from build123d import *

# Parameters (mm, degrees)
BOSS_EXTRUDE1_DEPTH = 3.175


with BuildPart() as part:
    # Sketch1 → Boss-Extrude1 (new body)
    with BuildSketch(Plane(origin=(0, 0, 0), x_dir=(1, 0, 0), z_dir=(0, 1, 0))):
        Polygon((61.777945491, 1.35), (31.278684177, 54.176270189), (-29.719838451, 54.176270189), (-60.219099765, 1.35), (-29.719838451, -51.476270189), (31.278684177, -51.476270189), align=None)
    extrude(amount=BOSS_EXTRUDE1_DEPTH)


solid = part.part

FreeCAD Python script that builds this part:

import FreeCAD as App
import Part
import Sketcher

V = App.Vector
Q = App.Units.Quantity

doc = App.newDocument("Part")
body = doc.addObject("PartDesign::Body", "Body")

sketch1 = doc.addObject("Sketcher::SketchObject", "Sketch")
body.addObject(sketch1)
sketch1.AttachmentSupport = (doc.XZ_Plane, [""])
sketch1.MapMode = "FlatFace"
sketch1.addGeometry(Part.LineSegment(V(62, -1, 0), V(31, -54, 0)), False)
sketch1.addGeometry(Part.LineSegment(V(31, -54, 0), V(-30, -54, 0)), False)
sketch1.addGeometry(Part.LineSegment(V(-30, -54, 0), V(-60, -1, 0)), False)
sketch1.addGeometry(Part.LineSegment(V(-60, -1, 0), V(-30, 51, 0)), False)
sketch1.addGeometry(Part.LineSegment(V(-30, 51, 0), V(31, 51, 0)), False)
sketch1.addGeometry(Part.LineSegment(V(31, 51, 0), V(62, -1, 0)), False)
sketch1.addConstraint(Sketcher.Constraint("Coincident", 0, 2, 1, 1))
sketch1.addConstraint(Sketcher.Constraint("Coincident", 1, 2, 2, 1))
sketch1.addConstraint(Sketcher.Constraint("Coincident", 2, 2, 3, 1))
sketch1.addConstraint(Sketcher.Constraint("Coincident", 3, 2, 4, 1))
sketch1.addConstraint(Sketcher.Constraint("Coincident", 4, 2, 5, 1))
sketch1.addConstraint(Sketcher.Constraint("Coincident", 5, 2, 0, 1))
sketch1.addConstraint(Sketcher.Constraint("Horizontal", 1))
sketch1.addConstraint(Sketcher.Constraint("Horizontal", 4))
sketch1.addConstraint(Sketcher.Constraint("Parallel", 0, 3))
sketch1.addConstraint(Sketcher.Constraint("Parallel", 2, 5))
sketch1.addConstraint(Sketcher.Constraint("Horizontal", 2, 2, 5, 2))
sketch1.addConstraint(Sketcher.Constraint("Vertical", 1, 2, 3, 2))
sketch1.addConstraint(Sketcher.Constraint("Vertical", 0, 2, 4, 2))
sketch1.addConstraint(Sketcher.Constraint("Angle", 0, Q("-120 deg")))
sketch1.addConstraint(Sketcher.Constraint("DistanceX", 2, 2, -1, 1, Q("60.2191 mm")))
sketch1.addConstraint(Sketcher.Constraint("DistanceY", 2, 2, -1, 1, Q("1.35 mm")))
sketch1.addConstraint(Sketcher.Constraint("DistanceX", 1, 2, 1, 1, Q("60.998523 mm")))
sketch1.addConstraint(Sketcher.Constraint("DistanceY", 0, 2, -1, 1, Q("54.17627 mm")))
pad1 = doc.addObject("PartDesign::Pad", "Pad")
body.addObject(pad1)
pad1.Profile = sketch1
pad1.Length = Q("0.125 in")
pad1.Reversed = True

doc.recompute()
